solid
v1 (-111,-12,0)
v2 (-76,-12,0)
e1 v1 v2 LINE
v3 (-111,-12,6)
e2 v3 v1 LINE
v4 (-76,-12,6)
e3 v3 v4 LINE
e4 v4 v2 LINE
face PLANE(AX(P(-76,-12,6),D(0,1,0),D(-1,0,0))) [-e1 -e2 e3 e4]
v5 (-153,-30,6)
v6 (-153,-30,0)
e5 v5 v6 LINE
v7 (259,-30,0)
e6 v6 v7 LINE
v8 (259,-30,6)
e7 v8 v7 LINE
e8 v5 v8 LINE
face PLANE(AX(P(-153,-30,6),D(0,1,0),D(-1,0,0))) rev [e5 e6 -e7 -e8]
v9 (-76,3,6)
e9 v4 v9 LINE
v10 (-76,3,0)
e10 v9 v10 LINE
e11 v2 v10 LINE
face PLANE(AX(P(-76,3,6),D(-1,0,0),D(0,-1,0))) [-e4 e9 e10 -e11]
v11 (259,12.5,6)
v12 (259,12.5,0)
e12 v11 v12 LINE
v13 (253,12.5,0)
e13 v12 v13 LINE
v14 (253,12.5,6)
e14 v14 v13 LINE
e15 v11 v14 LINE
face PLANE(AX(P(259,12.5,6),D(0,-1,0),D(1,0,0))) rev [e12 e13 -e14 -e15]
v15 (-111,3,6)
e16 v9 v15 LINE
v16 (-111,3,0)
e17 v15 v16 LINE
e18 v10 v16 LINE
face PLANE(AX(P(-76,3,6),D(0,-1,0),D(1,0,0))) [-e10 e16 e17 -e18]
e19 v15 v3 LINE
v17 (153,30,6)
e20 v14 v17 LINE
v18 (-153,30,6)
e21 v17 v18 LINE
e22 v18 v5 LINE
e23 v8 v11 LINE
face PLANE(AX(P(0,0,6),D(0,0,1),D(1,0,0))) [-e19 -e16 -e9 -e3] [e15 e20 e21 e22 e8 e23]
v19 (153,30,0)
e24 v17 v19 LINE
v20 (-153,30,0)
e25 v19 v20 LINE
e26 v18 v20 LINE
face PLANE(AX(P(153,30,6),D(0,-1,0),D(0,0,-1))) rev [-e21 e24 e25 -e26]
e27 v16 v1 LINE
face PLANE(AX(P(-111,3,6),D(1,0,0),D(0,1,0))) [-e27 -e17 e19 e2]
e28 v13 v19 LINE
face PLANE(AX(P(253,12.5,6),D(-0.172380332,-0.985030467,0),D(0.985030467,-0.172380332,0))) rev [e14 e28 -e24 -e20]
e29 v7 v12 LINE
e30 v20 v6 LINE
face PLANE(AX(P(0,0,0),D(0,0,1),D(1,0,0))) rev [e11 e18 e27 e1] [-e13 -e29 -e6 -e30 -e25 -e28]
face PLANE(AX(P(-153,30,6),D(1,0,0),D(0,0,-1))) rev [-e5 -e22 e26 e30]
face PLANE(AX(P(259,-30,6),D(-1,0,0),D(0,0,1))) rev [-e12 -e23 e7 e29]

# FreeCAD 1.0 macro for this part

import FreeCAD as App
import Part
import Sketcher


def add_polygon(sketch, points):
    """Adds a closed chain of lines whose ends are joined by coincident constraints."""
    first, n = sketch.GeometryCount, len(points)
    for a, b in zip(points, points[1:] + points[:1]):
        sketch.addGeometry(Part.LineSegment(App.Vector(*a, 0), App.Vector(*b, 0)), False)
    for i in range(n):
        sketch.addConstraint(Sketcher.Constraint("Coincident", first + i, 2, first + (i + 1) % n, 1))

doc = App.newDocument("Part")
params = doc.addObject("Spreadsheet::Sheet", "Params")
for row, (alias, value) in enumerate([
    ("sketch1_width", "412 mm"),
    ("sketch1_width2", "6 mm"),
    ("sketch1_width3", "306 mm"),
    ("sketch1_width4", "35 mm"),
    ("sketch1_height", "60 mm"),
    ("pad1_length", "6 mm"),
], start=1):
    params.set(f"A{row}", alias)
    params.set(f"B{row}", "=" + value)
    params.setAlias(f"B{row}", alias)

body = doc.addObject("PartDesign::Body", "Body")

sketch1 = body.newObject("Sketcher::SketchObject", "Sketch")
sketch1.AttachmentSupport = (doc.getObject("XY_Plane"), [""])
sketch1.MapMode = "FlatFace"
add_polygon(sketch1, [(-153, 30), (-153, -30), (259, -30), (259, 12), (253, 12), (153, 30)])
add_polygon(sketch1, [(-76, -12), (-111, -12), (-111, 3), (-76, 3)])
sketch1.addConstraint(Sketcher.Constraint("Vertical", 0))
sketch1.addConstraint(Sketcher.Constraint("Horizontal", 1))
sketch1.addConstraint(Sketcher.Constraint("Vertical", 2))
sketch1.addConstraint(Sketcher.Constraint("Horizontal", 3))
sketch1.addConstraint(Sketcher.Constraint("Horizontal", 5))
sketch1.addConstraint(Sketcher.Constraint("Horizontal", 6))
sketch1.addConstraint(Sketcher.Constraint("Vertical", 7))
sketch1.addConstraint(Sketcher.Constraint("Horizontal", 8))
sketch1.addConstraint(Sketcher.Constraint("Vertical", 9))
sketch1.addConstraint(Sketcher.Constraint("Symmetric", 0, 2, 4, 2, -1, 1))
sketch1.addConstraint(Sketcher.Constraint("DistanceX", 1, 1, 1, 2, 412.0))
sketch1.addConstraint(Sketcher.Constraint("DistanceX", 3, 2, 3, 1, 6.0))
sketch1.addConstraint(Sketcher.Constraint("DistanceX", 5, 2, 5, 1, 306.0))
sketch1.addConstraint(Sketcher.Constraint("DistanceX", 6, 2, 6, 1, 35.0))
sketch1.addConstraint(Sketcher.Constraint("DistanceY", 0, 2, 0, 1, 60.0))
sketch1.addConstraint(Sketcher.Constraint("DistanceY", 7, 1, 7, 2, 15.0))
sketch1.addConstraint(Sketcher.Constraint("DistanceY", 2, 1, 2, 2, 42.5))
sketch1.addConstraint(Sketcher.Constraint("DistanceX", 6, 2, -1, 1, 111.0))
sketch1.addConstraint(Sketcher.Constraint("DistanceY", 6, 2, -1, 1, 12.0))
sketch1.setExpression("Constraints[20]", "Params.sketch1_width")
sketch1.setExpression("Constraints[21]", "Params.sketch1_width2")
sketch1.setExpression("Constraints[22]", "Params.sketch1_width3")
sketch1.setExpression("Constraints[23]", "Params.sketch1_width4")
sketch1.setExpression("Constraints[24]", "Params.sketch1_height")
pad1 = body.newObject("PartDesign::Pad", "Pad")
pad1.Profile = sketch1
pad1.setExpression("Length", "Params.pad1_length")

doc.recompute()
